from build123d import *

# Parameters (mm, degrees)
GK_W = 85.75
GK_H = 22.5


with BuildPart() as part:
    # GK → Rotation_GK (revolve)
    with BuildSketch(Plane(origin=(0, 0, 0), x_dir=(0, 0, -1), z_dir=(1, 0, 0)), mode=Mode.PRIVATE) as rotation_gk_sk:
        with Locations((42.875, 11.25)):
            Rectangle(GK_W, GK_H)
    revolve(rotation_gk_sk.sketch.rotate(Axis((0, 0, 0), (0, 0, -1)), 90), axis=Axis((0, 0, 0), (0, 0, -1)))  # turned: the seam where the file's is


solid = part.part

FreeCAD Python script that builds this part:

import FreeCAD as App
import Part
import Sketcher
Q = App.Units.Quantity

doc = App.newDocument("Part")
body = doc.addObject("PartDesign::Body", "Body")

sketch1 = doc.addObject("Sketcher::SketchObject", "Sketch")
body.addObject(sketch1)
sketch1.AttachmentSupport = (doc.YZ_Plane, [""])
sketch1.MapMode = "FlatFace"
sketch1.addGeometry([
    Part.LineSegment(App.Vector(22, 0, 0), App.Vector(0, 0, 0)),
    Part.LineSegment(App.Vector(0, 0, 0), App.Vector(0, -86, 0)),
    Part.LineSegment(App.Vector(0, -86, 0), App.Vector(22, -86, 0)),
    Part.LineSegment(App.Vector(22, -86, 0), App.Vector(22, 0, 0)),
], False)
sketch1.addConstraint([
    Sketcher.Constraint("Coincident", 0, 2, 1, 1),
    Sketcher.Constraint("Coincident", 1, 2, 2, 1),
    Sketcher.Constraint("Coincident", 2, 2, 3, 1),
    Sketcher.Constraint("Coincident", 3, 2, 0, 1),
    Sketcher.Constraint("Horizontal", 0),
    Sketcher.Constraint("Vertical", 1),
    Sketcher.Constraint("Horizontal", 2),
    Sketcher.Constraint("Vertical", 3),
    Sketcher.Constraint("Coincident", 0, 2, -1, 1),
    Sketcher.Constraint("DistanceX", 0, 2, 0, 1, Q("22.5 mm")),
    Sketcher.Constraint("DistanceY", 1, 2, 1, 1, Q("85.75 mm")),
])
revolution = doc.addObject("PartDesign::Revolution", "Revolution")
body.addObject(revolution)
revolution.Profile = sketch1
revolution.ReferenceAxis = (sketch1, ["V_Axis"])
revolution.Angle = 360

doc.recompute()
